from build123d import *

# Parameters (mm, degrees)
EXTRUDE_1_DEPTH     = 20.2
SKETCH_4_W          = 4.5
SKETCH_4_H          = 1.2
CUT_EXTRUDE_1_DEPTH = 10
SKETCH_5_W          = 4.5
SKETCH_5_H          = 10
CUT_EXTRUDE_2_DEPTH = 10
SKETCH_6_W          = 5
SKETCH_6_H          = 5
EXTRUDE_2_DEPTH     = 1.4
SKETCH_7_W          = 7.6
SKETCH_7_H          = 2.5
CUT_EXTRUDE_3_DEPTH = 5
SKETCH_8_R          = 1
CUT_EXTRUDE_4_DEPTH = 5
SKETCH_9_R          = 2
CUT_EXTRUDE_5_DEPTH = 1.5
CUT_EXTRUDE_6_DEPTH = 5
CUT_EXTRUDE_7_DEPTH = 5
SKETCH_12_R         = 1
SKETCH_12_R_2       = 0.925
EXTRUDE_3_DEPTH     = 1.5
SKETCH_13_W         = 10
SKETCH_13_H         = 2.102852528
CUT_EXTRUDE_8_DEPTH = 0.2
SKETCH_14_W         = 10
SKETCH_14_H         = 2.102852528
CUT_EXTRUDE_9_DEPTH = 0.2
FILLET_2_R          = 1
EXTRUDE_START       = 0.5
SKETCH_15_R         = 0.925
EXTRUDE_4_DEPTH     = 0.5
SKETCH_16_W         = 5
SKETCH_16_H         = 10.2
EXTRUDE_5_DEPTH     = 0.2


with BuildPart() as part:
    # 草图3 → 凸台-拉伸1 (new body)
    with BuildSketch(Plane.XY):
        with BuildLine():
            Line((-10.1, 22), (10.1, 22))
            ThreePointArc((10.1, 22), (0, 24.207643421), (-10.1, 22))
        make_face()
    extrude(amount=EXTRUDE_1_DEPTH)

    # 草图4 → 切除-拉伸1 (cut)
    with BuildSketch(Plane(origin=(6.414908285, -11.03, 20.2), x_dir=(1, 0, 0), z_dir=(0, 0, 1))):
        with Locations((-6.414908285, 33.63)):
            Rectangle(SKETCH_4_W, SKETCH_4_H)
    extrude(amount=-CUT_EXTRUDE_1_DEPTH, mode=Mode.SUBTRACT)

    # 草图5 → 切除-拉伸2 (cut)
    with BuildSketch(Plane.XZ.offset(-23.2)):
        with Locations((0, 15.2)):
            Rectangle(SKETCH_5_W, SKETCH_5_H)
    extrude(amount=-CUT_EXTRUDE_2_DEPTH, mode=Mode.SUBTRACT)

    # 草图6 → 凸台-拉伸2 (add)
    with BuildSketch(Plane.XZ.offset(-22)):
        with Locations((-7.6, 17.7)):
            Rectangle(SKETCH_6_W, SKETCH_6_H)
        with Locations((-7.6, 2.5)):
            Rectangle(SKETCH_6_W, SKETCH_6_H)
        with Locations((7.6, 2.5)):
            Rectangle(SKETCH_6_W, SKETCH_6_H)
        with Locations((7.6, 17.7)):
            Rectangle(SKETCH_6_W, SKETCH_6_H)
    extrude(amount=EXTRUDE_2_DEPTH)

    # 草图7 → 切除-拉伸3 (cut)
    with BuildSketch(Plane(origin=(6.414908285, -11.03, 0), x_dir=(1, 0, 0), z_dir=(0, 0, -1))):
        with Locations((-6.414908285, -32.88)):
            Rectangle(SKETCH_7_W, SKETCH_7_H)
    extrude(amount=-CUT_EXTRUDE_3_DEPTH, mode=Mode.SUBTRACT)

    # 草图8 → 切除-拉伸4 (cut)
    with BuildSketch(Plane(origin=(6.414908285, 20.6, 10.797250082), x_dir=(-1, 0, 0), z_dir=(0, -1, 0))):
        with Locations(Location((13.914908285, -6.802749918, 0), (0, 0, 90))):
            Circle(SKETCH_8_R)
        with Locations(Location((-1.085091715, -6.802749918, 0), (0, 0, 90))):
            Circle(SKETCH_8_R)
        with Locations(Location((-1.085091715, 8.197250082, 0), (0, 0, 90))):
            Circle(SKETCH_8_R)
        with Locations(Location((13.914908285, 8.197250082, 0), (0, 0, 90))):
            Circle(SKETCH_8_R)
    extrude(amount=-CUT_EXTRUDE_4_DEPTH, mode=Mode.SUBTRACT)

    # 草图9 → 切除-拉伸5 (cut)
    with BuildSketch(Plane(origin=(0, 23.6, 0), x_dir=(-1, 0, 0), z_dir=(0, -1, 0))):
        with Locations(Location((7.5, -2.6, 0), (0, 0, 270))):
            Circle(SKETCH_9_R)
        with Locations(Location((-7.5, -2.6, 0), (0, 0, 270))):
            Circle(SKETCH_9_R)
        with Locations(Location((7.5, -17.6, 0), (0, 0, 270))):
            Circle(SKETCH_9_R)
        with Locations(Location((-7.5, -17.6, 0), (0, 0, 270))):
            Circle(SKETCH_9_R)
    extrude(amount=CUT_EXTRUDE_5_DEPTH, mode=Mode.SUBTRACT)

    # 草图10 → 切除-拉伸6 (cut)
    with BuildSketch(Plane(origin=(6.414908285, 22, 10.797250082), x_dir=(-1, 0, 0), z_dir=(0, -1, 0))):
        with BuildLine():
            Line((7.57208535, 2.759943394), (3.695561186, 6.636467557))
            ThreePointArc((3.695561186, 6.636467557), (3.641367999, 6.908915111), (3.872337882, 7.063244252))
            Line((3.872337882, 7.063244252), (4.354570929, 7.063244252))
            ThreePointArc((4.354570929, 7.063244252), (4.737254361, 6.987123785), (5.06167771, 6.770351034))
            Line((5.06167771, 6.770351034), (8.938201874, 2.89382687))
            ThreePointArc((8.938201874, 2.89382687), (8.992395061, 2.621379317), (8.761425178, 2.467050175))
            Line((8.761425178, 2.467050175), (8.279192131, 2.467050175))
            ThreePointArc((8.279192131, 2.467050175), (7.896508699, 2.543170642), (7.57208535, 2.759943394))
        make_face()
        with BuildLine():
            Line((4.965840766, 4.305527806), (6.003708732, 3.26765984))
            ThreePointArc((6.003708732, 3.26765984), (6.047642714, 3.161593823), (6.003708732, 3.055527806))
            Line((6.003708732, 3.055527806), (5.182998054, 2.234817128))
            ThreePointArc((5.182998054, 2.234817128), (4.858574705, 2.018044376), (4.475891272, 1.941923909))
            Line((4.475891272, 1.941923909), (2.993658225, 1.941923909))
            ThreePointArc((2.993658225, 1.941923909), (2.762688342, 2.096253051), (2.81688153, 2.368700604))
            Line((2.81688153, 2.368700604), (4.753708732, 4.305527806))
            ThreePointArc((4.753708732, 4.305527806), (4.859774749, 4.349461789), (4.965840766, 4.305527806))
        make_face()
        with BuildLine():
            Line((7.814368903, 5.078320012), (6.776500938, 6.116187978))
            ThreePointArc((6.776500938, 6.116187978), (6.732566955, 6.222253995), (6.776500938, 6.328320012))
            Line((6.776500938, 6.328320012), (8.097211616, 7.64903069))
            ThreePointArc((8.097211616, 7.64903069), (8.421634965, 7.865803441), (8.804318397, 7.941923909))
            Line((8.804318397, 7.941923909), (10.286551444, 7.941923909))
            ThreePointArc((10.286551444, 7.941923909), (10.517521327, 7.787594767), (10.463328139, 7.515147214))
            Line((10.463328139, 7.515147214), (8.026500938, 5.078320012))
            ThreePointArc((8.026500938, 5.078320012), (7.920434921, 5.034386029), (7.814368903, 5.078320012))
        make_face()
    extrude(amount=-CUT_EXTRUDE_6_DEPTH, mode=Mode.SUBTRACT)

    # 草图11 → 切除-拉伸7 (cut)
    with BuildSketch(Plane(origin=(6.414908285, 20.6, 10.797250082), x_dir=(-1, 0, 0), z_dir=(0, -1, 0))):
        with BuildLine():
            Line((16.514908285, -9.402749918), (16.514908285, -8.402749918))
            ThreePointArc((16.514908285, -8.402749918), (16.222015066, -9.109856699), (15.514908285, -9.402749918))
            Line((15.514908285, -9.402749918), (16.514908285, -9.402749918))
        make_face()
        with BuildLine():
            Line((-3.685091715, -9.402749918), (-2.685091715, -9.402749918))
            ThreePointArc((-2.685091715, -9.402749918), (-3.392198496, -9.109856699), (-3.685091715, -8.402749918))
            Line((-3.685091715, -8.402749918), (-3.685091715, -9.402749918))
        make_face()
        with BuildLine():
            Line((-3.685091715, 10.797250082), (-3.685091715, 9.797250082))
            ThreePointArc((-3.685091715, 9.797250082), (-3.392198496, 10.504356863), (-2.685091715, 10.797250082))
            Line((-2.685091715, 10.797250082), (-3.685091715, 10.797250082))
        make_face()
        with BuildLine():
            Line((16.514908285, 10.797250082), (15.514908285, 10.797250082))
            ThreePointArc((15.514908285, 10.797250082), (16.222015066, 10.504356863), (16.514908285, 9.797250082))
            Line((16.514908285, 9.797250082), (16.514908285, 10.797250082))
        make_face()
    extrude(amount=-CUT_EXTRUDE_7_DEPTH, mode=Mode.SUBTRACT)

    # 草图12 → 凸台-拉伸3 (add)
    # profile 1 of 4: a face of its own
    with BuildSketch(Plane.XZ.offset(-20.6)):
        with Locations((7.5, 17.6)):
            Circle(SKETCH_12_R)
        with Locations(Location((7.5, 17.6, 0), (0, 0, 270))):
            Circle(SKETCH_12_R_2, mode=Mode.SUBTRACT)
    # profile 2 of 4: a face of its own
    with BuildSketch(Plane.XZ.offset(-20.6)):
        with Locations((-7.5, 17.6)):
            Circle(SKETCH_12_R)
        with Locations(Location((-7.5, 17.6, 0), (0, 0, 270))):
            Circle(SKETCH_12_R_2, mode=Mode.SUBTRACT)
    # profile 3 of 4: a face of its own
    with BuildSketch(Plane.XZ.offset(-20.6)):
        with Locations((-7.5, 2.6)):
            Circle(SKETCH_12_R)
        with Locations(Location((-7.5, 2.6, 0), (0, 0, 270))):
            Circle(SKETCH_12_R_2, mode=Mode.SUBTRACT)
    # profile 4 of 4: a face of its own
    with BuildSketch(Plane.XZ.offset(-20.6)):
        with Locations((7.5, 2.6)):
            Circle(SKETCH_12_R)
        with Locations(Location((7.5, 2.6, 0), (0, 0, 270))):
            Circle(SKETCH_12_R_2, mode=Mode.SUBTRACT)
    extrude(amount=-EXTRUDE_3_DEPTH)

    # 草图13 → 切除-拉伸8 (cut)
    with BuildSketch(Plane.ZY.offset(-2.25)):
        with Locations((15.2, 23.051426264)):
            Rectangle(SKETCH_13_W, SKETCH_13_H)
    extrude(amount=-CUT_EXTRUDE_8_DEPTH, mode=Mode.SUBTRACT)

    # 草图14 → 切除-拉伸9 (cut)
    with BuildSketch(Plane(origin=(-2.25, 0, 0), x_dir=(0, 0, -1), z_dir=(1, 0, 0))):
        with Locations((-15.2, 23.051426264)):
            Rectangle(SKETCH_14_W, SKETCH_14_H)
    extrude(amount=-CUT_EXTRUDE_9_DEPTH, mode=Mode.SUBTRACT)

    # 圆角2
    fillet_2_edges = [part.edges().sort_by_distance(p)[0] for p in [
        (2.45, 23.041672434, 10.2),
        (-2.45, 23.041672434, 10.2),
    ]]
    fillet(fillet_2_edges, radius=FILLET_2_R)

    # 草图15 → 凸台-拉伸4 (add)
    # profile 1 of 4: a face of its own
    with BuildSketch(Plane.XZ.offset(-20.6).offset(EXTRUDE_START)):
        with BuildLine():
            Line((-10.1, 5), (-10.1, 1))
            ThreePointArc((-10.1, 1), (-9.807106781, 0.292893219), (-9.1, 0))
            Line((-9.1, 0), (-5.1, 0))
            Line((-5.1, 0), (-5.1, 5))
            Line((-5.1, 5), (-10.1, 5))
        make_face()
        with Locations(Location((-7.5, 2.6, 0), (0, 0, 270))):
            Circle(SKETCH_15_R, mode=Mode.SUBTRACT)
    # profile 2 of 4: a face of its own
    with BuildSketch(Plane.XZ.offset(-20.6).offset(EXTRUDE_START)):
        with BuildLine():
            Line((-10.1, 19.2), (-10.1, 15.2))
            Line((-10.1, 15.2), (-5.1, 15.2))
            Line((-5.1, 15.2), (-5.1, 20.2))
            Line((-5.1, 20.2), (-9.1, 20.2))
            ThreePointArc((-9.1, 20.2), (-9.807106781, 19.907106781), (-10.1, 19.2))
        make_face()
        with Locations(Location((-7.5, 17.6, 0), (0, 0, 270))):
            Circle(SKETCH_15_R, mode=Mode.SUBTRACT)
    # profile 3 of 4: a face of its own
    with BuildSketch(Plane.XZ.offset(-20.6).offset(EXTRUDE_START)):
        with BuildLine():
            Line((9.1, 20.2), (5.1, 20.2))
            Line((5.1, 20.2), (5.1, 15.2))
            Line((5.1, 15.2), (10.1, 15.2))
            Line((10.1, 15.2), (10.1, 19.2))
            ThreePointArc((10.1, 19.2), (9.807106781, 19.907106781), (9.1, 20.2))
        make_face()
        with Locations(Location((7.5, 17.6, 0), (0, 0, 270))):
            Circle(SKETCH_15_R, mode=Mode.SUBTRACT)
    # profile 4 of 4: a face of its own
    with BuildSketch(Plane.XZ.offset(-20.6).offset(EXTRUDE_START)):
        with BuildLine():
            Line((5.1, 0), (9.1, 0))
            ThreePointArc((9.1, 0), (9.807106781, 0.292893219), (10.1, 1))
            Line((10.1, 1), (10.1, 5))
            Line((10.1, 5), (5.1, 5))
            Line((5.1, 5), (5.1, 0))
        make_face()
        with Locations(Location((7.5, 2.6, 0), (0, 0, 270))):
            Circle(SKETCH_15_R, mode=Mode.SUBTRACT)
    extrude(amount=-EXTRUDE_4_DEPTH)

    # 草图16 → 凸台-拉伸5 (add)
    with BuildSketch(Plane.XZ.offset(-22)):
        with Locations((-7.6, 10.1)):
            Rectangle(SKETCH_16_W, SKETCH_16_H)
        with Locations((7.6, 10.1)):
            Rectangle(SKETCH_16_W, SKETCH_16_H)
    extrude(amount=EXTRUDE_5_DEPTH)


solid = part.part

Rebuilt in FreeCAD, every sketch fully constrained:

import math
import FreeCAD as App
import Part
import Sketcher
from FreeCAD import Vector


def edges_at(feature, points):
    """Names of the edges that pass closest to the given points."""
    edges = feature.Shape.Edges
    near = lambda p: min(range(len(edges)), key=lambda i: edges[i].distToShape(Part.Vertex(*p))[0])
    return sorted({f"Edge{near(p) + 1}" for p in points})

doc = App.newDocument("Part")
body = doc.addObject("PartDesign::Body", "Body")

# Sketch on XY plane
sketch1 = body.newObject("Sketcher::SketchObject", "Sketch")
sketch1.AttachmentSupport = (doc.getObject("XY_Plane"), [""])
sketch1.MapMode = "FlatFace"
sketch1.addGeometry([
    Part.LineSegment(Vector(-10.1, 22, 0), Vector(10.1, 22, 0)),
    Part.ArcOfCircle(Part.Circle(Vector(0, 0, 0), Vector(0, 0, 1), 24.207643), math.radians(65.340575), math.radians(114.659425)),
], False)
sketch1.addConstraint([
    Sketcher.Constraint("Coincident", 0, 1, 1, 2),
    Sketcher.Constraint("Coincident", 1, 1, 0, 2),
    Sketcher.Constraint("Horizontal", 0),
    Sketcher.Constraint("Coincident", 1, 3, -1, 1),
    Sketcher.Constraint("DistanceX", 0, 1, 0, 2, 20.2),
    Sketcher.Constraint("DistanceY", -1, 1, 0, 1, 22.0),
])
pad1 = body.newObject("PartDesign::Pad", "Pad")
pad1.Profile = sketch1
pad1.Length = 20.2

# Sketch on XY plane
sketch2 = body.newObject("Sketcher::SketchObject", "Sketch001")
sketch2.AttachmentSupport = (doc.getObject("XY_Plane"), [""])
sketch2.MapMode = "FlatFace"
sketch2.AttachmentOffset = App.Placement(Vector(0, 0, 20.2), App.Rotation())
sketch2.addGeometry([
    Part.LineSegment(Vector(-2.25, 23.2, 0), Vector(-2.25, 22, 0)),
    Part.LineSegment(Vector(-2.25, 22, 0), Vector(2.25, 22, 0)),
    Part.LineSegment(Vector(2.25, 22, 0), Vector(2.25, 23.2, 0)),
    Part.LineSegment(Vector(2.25, 23.2, 0), Vector(-2.25, 23.2, 0)),
], False)
sketch2.addConstraint([
    Sketcher.Constraint("Coincident", 0, 2, 1, 1),
    Sketcher.Constraint("Coincident", 1, 2, 2, 1),
    Sketcher.Constraint("Coincident", 2, 2, 3, 1),
    Sketcher.Constraint("Coincident", 3, 2, 0, 1),
    Sketcher.Constraint("Vertical", 0),
    Sketcher.Constraint("Horizontal", 1),
    Sketcher.Constraint("Vertical", 2),
    Sketcher.Constraint("Horizontal", 3),
    Sketcher.Constraint("DistanceX", 1, 1, 1, 2, 4.5),
    Sketcher.Constraint("DistanceY", 0, 2, 0, 1, 1.2),
    Sketcher.Constraint("DistanceY", -1, 1, 0, 2, 22.0),
    Sketcher.Constraint("DistanceX", 0, 2, -1, 1, 2.25),
])
pocket1 = body.newObject("PartDesign::Pocket", "Pocket")
pocket1.Profile = sketch2
pocket1.Length = 10

# Sketch on XZ plane
sketch3 = body.newObject("Sketcher::SketchObject", "Sketch002")
sketch3.AttachmentSupport = (doc.getObject("XZ_Plane"), [""])
sketch3.MapMode = "FlatFace"
sketch3.AttachmentOffset = App.Placement(Vector(0, 0, -23.2), App.Rotation())
sketch3.addGeometry([
    Part.LineSegment(Vector(-2.25, 20.2, 0), Vector(-2.25, 10.2, 0)),
    Part.LineSegment(Vector(-2.25, 10.2, 0), Vector(2.25, 10.2, 0)),
    Part.LineSegment(Vector(2.25, 10.2, 0), Vector(2.25, 20.2, 0)),
    Part.LineSegment(Vector(2.25, 20.2, 0), Vector(-2.25, 20.2, 0)),
], False)
sketch3.addConstraint([
    Sketcher.Constraint("Coincident", 0, 2, 1, 1),
    Sketcher.Constraint("Coincident", 1, 2, 2, 1),
    Sketcher.Constraint("Coincident", 2, 2, 3, 1),
    Sketcher.Constraint("Coincident", 3, 2, 0, 1),
    Sketcher.Constraint("Vertical", 0),
    Sketcher.Constraint("Horizontal", 1),
    Sketcher.Constraint("Vertical", 2),
    Sketcher.Constraint("Horizontal", 3),
    Sketcher.Constraint("DistanceY", 0, 2, 0, 1, 10.0),
    Sketcher.Constraint("DistanceX", 1, 1, 1, 2, 4.5),
    Sketcher.Constraint("DistanceY", -1, 1, 0, 2, 10.2),
    Sketcher.Constraint("DistanceX", 0, 2, -1, 1, 2.25),
])
pocket2 = body.newObject("PartDesign::Pocket", "Pocket001")
pocket2.Profile = sketch3
pocket2.Length = 10

# Sketch on XZ plane
sketch4 = body.newObject("Sketcher::SketchObject", "Sketch003")
sketch4.AttachmentSupport = (doc.getObject("XZ_Plane"), [""])
sketch4.MapMode = "FlatFace"
sketch4.AttachmentOffset = App.Placement(Vector(0, 0, -22), App.Rotation())
sketch4.addGeometry([
    Part.LineSegment(Vector(-10.1, 20.2, 0), Vector(-10.1, 15.2, 0)),  # 0
    Part.LineSegment(Vector(-10.1, 15.2, 0), Vector(-5.1, 15.2, 0)),  # 1
    Part.LineSegment(Vector(-5.1, 15.2, 0), Vector(-5.1, 20.2, 0)),  # 2
    Part.LineSegment(Vector(-5.1, 20.2, 0), Vector(-10.1, 20.2, 0)),  # 3
    Part.LineSegment(Vector(-10.1, 5, 0), Vector(-10.1, 0, 0)),  # 4
    Part.LineSegment(Vector(-10.1, 0, 0), Vector(-5.1, 0, 0)),  # 5
    Part.LineSegment(Vector(-5.1, 0, 0), Vector(-5.1, 5, 0)),  # 6
    Part.LineSegment(Vector(-5.1, 5, 0), Vector(-10.1, 5, 0)),  # 7
    Part.LineSegment(Vector(5.1, 5, 0), Vector(5.1, 0, 0)),  # 8
    Part.LineSegment(Vector(5.1, 0, 0), Vector(10.1, 0, 0)),  # 9
    Part.LineSegment(Vector(10.1, 0, 0), Vector(10.1, 5, 0)),  # 10
    Part.LineSegment(Vector(10.1, 5, 0), Vector(5.1, 5, 0)),  # 11
    Part.LineSegment(Vector(5.1, 20.2, 0), Vector(5.1, 15.2, 0)),  # 12
    Part.LineSegment(Vector(5.1, 15.2, 0), Vector(10.1, 15.2, 0)),  # 13
    Part.LineSegment(Vector(10.1, 15.2, 0), Vector(10.1, 20.2, 0)),  # 14
    Part.LineSegment(Vector(10.1, 20.2, 0), Vector(5.1, 20.2, 0)),  # 15
], False)
sketch4.addConstraint([
    Sketcher.Constraint("Coincident", 0, 2, 1, 1),
    Sketcher.Constraint("Coincident", 1, 2, 2, 1),
    Sketcher.Constraint("Coincident", 2, 2, 3, 1),
    Sketcher.Constraint("Coincident", 3, 2, 0, 1),
    Sketcher.Constraint("Coincident", 4, 2, 5, 1),
    Sketcher.Constraint("Coincident", 5, 2, 6, 1),
    Sketcher.Constraint("Coincident", 6, 2, 7, 1),
    Sketcher.Constraint("Coincident", 7, 2, 4, 1),
    Sketcher.Constraint("Coincident", 8, 2, 9, 1),
    Sketcher.Constraint("Coincident", 9, 2, 10, 1),
    Sketcher.Constraint("Coincident", 10, 2, 11, 1),
    Sketcher.Constraint("Coincident", 11, 2, 8, 1),
    Sketcher.Constraint("Coincident", 12, 2, 13, 1),
    Sketcher.Constraint("Coincident", 13, 2, 14, 1),
    Sketcher.Constraint("Coincident", 14, 2, 15, 1),
    Sketcher.Constraint("Coincident", 15, 2, 12, 1),
    Sketcher.Constraint("Vertical", 0),
    Sketcher.Constraint("Horizontal", 1),
    Sketcher.Constraint("Vertical", 2),
    Sketcher.Constraint("Horizontal", 3),
    Sketcher.Constraint("Vertical", 4),
    Sketcher.Constraint("Horizontal", 5),
    Sketcher.Constraint("Vertical", 6),
    Sketcher.Constraint("Horizontal", 7),
    Sketcher.Constraint("Vertical", 8),
    Sketcher.Constraint("Horizontal", 9),
    Sketcher.Constraint("Vertical", 10),
    Sketcher.Constraint("Horizontal", 11),
    Sketcher.Constraint("Vertical", 12),
    Sketcher.Constraint("Horizontal", 13),
    Sketcher.Constraint("Vertical", 14),
    Sketcher.Constraint("Horizontal", 15),
    Sketcher.Constraint("Symmetric", 5, 2, 8, 2, -1, 1),
    Sketcher.Constraint("Symmetric", 4, 2, 9, 2, -2),
    Sketcher.Constraint("Symmetric", 1, 2, 12, 2, -2),
    Sketcher.Constraint("Symmetric", 3, 2, 14, 2, -2),
    Sketcher.Constraint("Horizontal", 7, 2, 10, 2),
    Sketcher.Constraint("Vertical", 3, 2, 4, 2),
    Sketcher.Constraint("Vertical", 2, 2, 5, 2),
    Sketcher.Constraint("Equal", 15, 0),
    Sketcher.Constraint("Equal", 2, 4),
    Sketcher.Constraint("DistanceX", 1, 1, 1, 2, 5.0),
    Sketcher.Constraint("DistanceX", 0, 2, -1, 1, 10.1),
    Sketcher.Constraint("DistanceY", -1, 1, 0, 2, 15.2),
])
pad2 = body.newObject("PartDesign::Pad", "Pad001")
pad2.Profile = sketch4
pad2.Length = 1.4

# Sketch on XY plane
sketch5 = body.newObject("Sketcher::SketchObject", "Sketch004")
sketch5.AttachmentSupport = (doc.getObject("XY_Plane"), [""])
sketch5.MapMode = "FlatFace"
sketch5.addGeometry([
    Part.LineSegment(Vector(-3.8, 20.6, 0), Vector(-3.8, 23.1, 0)),
    Part.LineSegment(Vector(-3.8, 23.1, 0), Vector(3.8, 23.1, 0)),
    Part.LineSegment(Vector(3.8, 23.1, 0), Vector(3.8, 20.6, 0)),
    Part.LineSegment(Vector(3.8, 20.6, 0), Vector(-3.8, 20.6, 0)),
], False)
sketch5.addConstraint([
    Sketcher.Constraint("Coincident", 0, 2, 1, 1),
    Sketcher.Constraint("Coincident", 1, 2, 2, 1),
    Sketcher.Constraint("Coincident", 2, 2, 3, 1),
    Sketcher.Constraint("Coincident", 3, 2, 0, 1),
    Sketcher.Constraint("Vertical", 0),
    Sketcher.Constraint("Horizontal", 1),
    Sketcher.Constraint("Vertical", 2),
    Sketcher.Constraint("Horizontal", 3),
    Sketcher.Constraint("DistanceX", 1, 1, 1, 2, 7.6),
    Sketcher.Constraint("DistanceY", 0, 1, 0, 2, 2.5),
    Sketcher.Constraint("DistanceX", 0, 2, -1, 1, 3.8),
    Sketcher.Constraint("DistanceY", -1, 1, 0, 2, 23.1),
])
pocket3 = body.newObject("PartDesign::Pocket", "Pocket002")
pocket3.Profile = sketch5
pocket3.Length = 5
pocket3.Reversed = True

# Sketch on XZ plane
sketch6 = body.newObject("Sketcher::SketchObject", "Sketch005")
sketch6.AttachmentSupport = (doc.getObject("XZ_Plane"), [""])
sketch6.MapMode = "FlatFace"
sketch6.AttachmentOffset = App.Placement(Vector(0, 0, -20.6), App.Rotation())
sketch6.addGeometry([
    Part.Circle(Vector(-7.5, 17.6, 0), Vector(0, 0, 1), 1),
    Part.Circle(Vector(7.5, 17.6, 0), Vector(0, 0, 1), 1),
    Part.Circle(Vector(7.5, 2.6, 0), Vector(0, 0, 1), 1),
    Part.Circle(Vector(-7.5, 2.6, 0), Vector(0, 0, 1), 1),
], False)
sketch6.addConstraint([
    Sketcher.Constraint("Equal", 0, 1),
    Sketcher.Constraint("Equal", 1, 2),
    Sketcher.Constraint("Equal", 2, 3),
    Sketcher.Constraint("Symmetric", 0, 3, 1, 3, -2),
    Sketcher.Constraint("Symmetric", 2, 3, 3, 3, -2),
    Sketcher.Constraint("Vertical", 1, 3, 2, 3),
    Sketcher.Constraint("Diameter", 0, 2.0),
    Sketcher.Constraint("DistanceX", 0, 3, 1, 3, 15.0),
    Sketcher.Constraint("DistanceY", 2, 3, 1, 3, 15.0),
    Sketcher.Constraint("DistanceY", -1, 1, 0, 3, 17.6),
])
pocket4 = body.newObject("PartDesign::Pocket", "Pocket003")
pocket4.Profile = sketch6
pocket4.Length = 5

# Sketch on XZ plane
sketch7 = body.newObject("Sketcher::SketchObject", "Sketch006")
sketch7.AttachmentSupport = (doc.getObject("XZ_Plane"), [""])
sketch7.MapMode = "FlatFace"
sketch7.AttachmentOffset = App.Placement(Vector(0, 0, -23.6), App.Rotation())
sketch7.addGeometry([
    Part.Circle(Vector(-7.5, 2.6, 0), Vector(0, 0, 1), 2),
    Part.Circle(Vector(7.5, 2.6, 0), Vector(0, 0, 1), 2),
    Part.Circle(Vector(-7.5, 17.6, 0), Vector(0, 0, 1), 2),
    Part.Circle(Vector(7.5, 17.6, 0), Vector(0, 0, 1), 2),
], False)
sketch7.addConstraint([
    Sketcher.Constraint("Equal", 0, 1),
    Sketcher.Constraint("Equal", 1, 2),
    Sketcher.Constraint("Equal", 2, 3),
    Sketcher.Constraint("Symmetric", 0, 3, 1, 3, -2),
    Sketcher.Constraint("Symmetric", 2, 3, 3, 3, -2),
    Sketcher.Constraint("Vertical", 0, 3, 2, 3),
    Sketcher.Constraint("Diameter", 0, 4.0),
    Sketcher.Constraint("DistanceX", 0, 3, 1, 3, 15.0),
    Sketcher.Constraint("DistanceY", 0, 3, 2, 3, 15.0),
    Sketcher.Constraint("DistanceY", -1, 1, 0, 3, 2.6),
])
pocket5 = body.newObject("PartDesign::Pocket", "Pocket004")
pocket5.Profile = sketch7
pocket5.Length = 1.5
pocket5.Reversed = True

# Sketch on XZ plane
sketch8 = body.newObject("Sketcher::SketchObject", "Sketch007")
sketch8.AttachmentSupport = (doc.getObject("XZ_Plane"), [""])
sketch8.MapMode = "FlatFace"
sketch8.AttachmentOffset = App.Placement(Vector(0, 0, -22), App.Rotation())
sketch8.addGeometry([
    Part.LineSegment(Vector(2.719347, 4.160783, 0), Vector(-1.157177, 8.037307, 0)),  # 0
    Part.ArcOfCircle(Part.Circle(Vector(-1.864284, 7.3302, 0), Vector(0, 0, 1), 1), math.radians(45), math.radians(90)),  # 1
    Part.LineSegment(Vector(-1.864284, 8.3302, 0), Vector(-2.346517, 8.3302, 0)),  # 2
    Part.ArcOfCircle(Part.Circle(Vector(-2.346517, 8.0802, 0), Vector(0, 0, 1), 0.25), math.radians(90), math.radians(225)),  # 3
    Part.LineSegment(Vector(-2.523294, 7.903423, 0), Vector(1.353231, 4.026899, 0)),  # 4
    Part.ArcOfCircle(Part.Circle(Vector(2.060337, 4.734006, 0), Vector(0, 0, 1), 1), math.radians(-135), math.radians(-90)),  # 5
    Part.LineSegment(Vector(2.060337, 3.734006, 0), Vector(2.54257, 3.734006, 0)),  # 6
    Part.ArcOfCircle(Part.Circle(Vector(2.54257, 3.984006, 0), Vector(0, 0, 1), 0.25), math.radians(-90), math.radians(45)),  # 7
    Part.LineSegment(Vector(0.4112, 7.52959, 0), Vector(1.449068, 6.491722, 0)),  # 8
    Part.ArcOfCircle(Part.Circle(Vector(1.555134, 6.597788, 0), Vector(0, 0, 1), 0.15), math.radians(-135), math.radians(-45)),  # 9
    Part.LineSegment(Vector(1.6612, 6.491722, 0), Vector(3.598027, 8.428549, 0)),  # 10
    Part.ArcOfCircle(Part.Circle(Vector(3.42125, 8.605326, 0), Vector(0, 0, 1), 0.25), math.radians(-45), math.radians(90)),  # 11
    Part.LineSegment(Vector(3.42125, 8.855326, 0), Vector(1.939017, 8.855326, 0)),  # 12
    Part.ArcOfCircle(Part.Circle(Vector(1.939017, 7.855326, 0), Vector(0, 0, 1), 1), math.radians(90), math.radians(135)),  # 13
    Part.LineSegment(Vector(1.23191, 8.562433, 0), Vector(0.4112, 7.741722, 0)),  # 14
    Part.ArcOfCircle(Part.Circle(Vector(0.517266, 7.635656, 0), Vector(0, 0, 1), 0.15), math.radians(135.000001), math.radians(224.999999)),  # 15
    Part.LineSegment(Vector(-0.361593, 4.681062, 0), Vector(-1.399461, 5.71893, 0)),  # 16
    Part.ArcOfCircle(Part.Circle(Vector(-1.505527, 5.612864, 0), Vector(0, 0, 1), 0.15), math.radians(45), math.radians(135)),  # 17
    Part.LineSegment(Vector(-1.611593, 5.71893, 0), Vector(-4.04842, 3.282103, 0)),  # 18
    Part.ArcOfCircle(Part.Circle(Vector(-3.871643, 3.105326, 0), Vector(0, 0, 1), 0.25), math.radians(135), math.radians(270)),  # 19
    Part.LineSegment(Vector(-3.871643, 2.855326, 0), Vector(-2.38941, 2.855326, 0)),  # 20
    Part.ArcOfCircle(Part.Circle(Vector(-2.38941, 3.855326, 0), Vector(0, 0, 1), 1), math.radians(-90), math.radians(-45)),  # 21
    Part.LineSegment(Vector(-1.682303, 3.148219, 0), Vector(-0.361593, 4.46893, 0)),  # 22
    Part.ArcOfCircle(Part.Circle(Vector(-0.467659, 4.574996, 0), Vector(0, 0, 1), 0.15), math.radians(-45), math.radians(45)),  # 23
], False)
sketch8.addConstraint([
    Sketcher.Constraint("Tangent", 0, 2, 1, 1),
    Sketcher.Constraint("Tangent", 1, 2, 2, 1),
    Sketcher.Constraint("Tangent", 2, 2, 3, 1),
    Sketcher.Constraint("Tangent", 3, 2, 4, 1),
    Sketcher.Constraint("Tangent", 4, 2, 5, 1),
    Sketcher.Constraint("Tangent", 5, 2, 6, 1),
    Sketcher.Constraint("Tangent", 6, 2, 7, 1),
    Sketcher.Constraint("Tangent", 7, 2, 0, 1),
    Sketcher.Constraint("Tangent", 8, 2, 9, 1),
    Sketcher.Constraint("Tangent", 9, 2, 10, 1),
    Sketcher.Constraint("Tangent", 10, 2, 11, 1),
    Sketcher.Constraint("Tangent", 11, 2, 12, 1),
    Sketcher.Constraint("Tangent", 12, 2, 13, 1),
    Sketcher.Constraint("Tangent", 13, 2, 14, 1),
    Sketcher.Constraint("Tangent", 14, 2, 15, 1),
    Sketcher.Constraint("Tangent", 15, 2, 8, 1),
    Sketcher.Constraint("Tangent", 16, 2, 17, 1),
    Sketcher.Constraint("Tangent", 17, 2, 18, 1),
    Sketcher.Constraint("Tangent", 18, 2, 19, 1),
    Sketcher.Constraint("Tangent", 19, 2, 20, 1),
    Sketcher.Constraint("Tangent", 20, 2, 21, 1),
    Sketcher.Constraint("Tangent", 21, 2, 22, 1),
    Sketcher.Constraint("Tangent", 22, 2, 23, 1),
    Sketcher.Constraint("Tangent", 23, 2, 16, 1),
    Sketcher.Constraint("Horizontal", 2),
    Sketcher.Constraint("Horizontal", 6),
    Sketcher.Constraint("Horizontal", 12),
    Sketcher.Constraint("Horizontal", 20),
    Sketcher.Constraint("Equal", 1, 5),
    Sketcher.Constraint("Equal", 3, 7),
    Sketcher.Constraint("Equal", 7, 11),
    Sketcher.Constraint("Equal", 5, 13),
    Sketcher.Constraint("Equal", 9, 15),
    Sketcher.Constraint("Equal", 15, 17),
    Sketcher.Constraint("Equal", 11, 19),
    Sketcher.Constraint("Equal", 13, 21),
    Sketcher.Constraint("Equal", 17, 23),
    Sketcher.Constraint("Parallel", 0, 4),
    Sketcher.Constraint("Parallel", 4, 8),
    Sketcher.Constraint("Perpendicular", 8, 10),
    Sketcher.Constraint("Parallel", 10, 14),
    Sketcher.Constraint("Perpendicular", 14, 16),
    Sketcher.Constraint("Perpendicular", 16, 18),
    Sketcher.Constraint("Parallel", 18, 22),
    Sketcher.Constraint("Horizontal", 8, 2, 9, 2),
    Sketcher.Constraint("Equal", 12, 20),
    Sketcher.Constraint("Radius", 1, 1.0),
    Sketcher.Constraint("Radius", 3, 0.25),
    Sketcher.Constraint("Radius", 9, 0.15),
    Sketcher.Constraint("DistanceY", 22, 2, 16, 2, 1.25),
    Sketcher.Constraint("DistanceY", -1, 1, 1, 3, 7.3302),
    Sketcher.Constraint("DistanceY", -1, 1, 4, 2, 4.026899),
    Sketcher.Constraint("DistanceX", -1, 1, 9, 2, 1.6612),
    Sketcher.Constraint("DistanceX", 1, 3, 13, 3, 3.803301),
    Sketcher.Constraint("Distance", 14, 1.16066),
    Sketcher.Constraint("DistanceX", 2, 2, 2, 1, 0.482233),
    Sketcher.Constraint("DistanceY", -1, 1, 9, 3, 6.597788),
    Sketcher.Constraint("DistanceX", 21, 3, -1, 1, 2.38941),
    Sketcher.Constraint("DistanceX", 23, 3, -1, 1, 0.467659),
    Sketcher.Constraint("DistanceY", -1, 1, 16, 2, 5.71893),
])
pocket6 = body.newObject("PartDesign::Pocket", "Pocket005")
pocket6.Profile = sketch8
pocket6.Length = 5

# Sketch on XZ plane
sketch9 = body.newObject("Sketcher::SketchObject", "Sketch008")
sketch9.AttachmentSupport = (doc.getObject("XZ_Plane"), [""])
sketch9.MapMode = "FlatFace"
sketch9.AttachmentOffset = App.Placement(Vector(0, 0, -20.6), App.Rotation())
sketch9.addGeometry([
    Part.LineSegment(Vector(-10.1, 20.2, 0), Vector(-10.1, 19.2, 0)),  # 0
    Part.ArcOfCircle(Part.Circle(Vector(-9.1, 19.2, 0), Vector(0, 0, 1), 1), math.radians(90), math.radians(180)),  # 1
    Part.LineSegment(Vector(-9.1, 20.2, 0), Vector(-10.1, 20.2, 0)),  # 2
    Part.LineSegment(Vector(10.1, 20.2, 0), Vector(9.1, 20.2, 0)),  # 3
    Part.ArcOfCircle(Part.Circle(Vector(9.1, 19.2, 0), Vector(0, 0, 1), 1), math.radians(0), math.radians(90)),  # 4
    Part.LineSegment(Vector(10.1, 19.2, 0), Vector(10.1, 20.2, 0)),  # 5
    Part.LineSegment(Vector(10.1, 0, 0), Vector(10.1, 1, 0)),  # 6
    Part.ArcOfCircle(Part.Circle(Vector(9.1, 1, 0), Vector(0, 0, 1), 1), math.radians(-90), math.radians(0)),  # 7
    Part.LineSegment(Vector(9.1, 0, 0), Vector(10.1, 0, 0)),  # 8
    Part.LineSegment(Vector(-10.1, 0, 0), Vector(-9.1, 0, 0)),  # 9
    Part.ArcOfCircle(Part.Circle(Vector(-9.1, 1, 0), Vector(0, 0, 1), 1), math.radians(-180), math.radians(-90)),  # 10
    Part.LineSegment(Vector(-10.1, 1, 0), Vector(-10.1, 0, 0)),  # 11
], False)
sketch9.addConstraint([
    Sketcher.Constraint("Tangent", 0, 2, 1, 2),
    Sketcher.Constraint("Tangent", 1, 1, 2, 1),
    Sketcher.Constraint("Coincident", 2, 2, 0, 1),
    Sketcher.Constraint("Tangent", 3, 2, 4, 2),
    Sketcher.Constraint("Tangent", 4, 1, 5, 1),
    Sketcher.Constraint("Coincident", 5, 2, 3, 1),
    Sketcher.Constraint("Tangent", 6, 2, 7, 2),
    Sketcher.Constraint("Tangent", 7, 1, 8, 1),
    Sketcher.Constraint("Coincident", 8, 2, 6, 1),
    Sketcher.Constraint("Tangent", 9, 2, 10, 2),
    Sketcher.Constraint("Tangent", 10, 1, 11, 1),
    Sketcher.Constraint("Coincident", 11, 2, 9, 1),
    Sketcher.Constraint("Vertical", 0),
    Sketcher.Constraint("Horizontal", 2),
    Sketcher.Constraint("Horizontal", 3),
    Sketcher.Constraint("Vertical", 5),
    Sketcher.Constraint("Vertical", 6),
    Sketcher.Constraint("Horizontal", 8),
    Sketcher.Constraint("Horizontal", 9),
    Sketcher.Constraint("Vertical", 11),
    Sketcher.Constraint("Equal", 1, 4),
    Sketcher.Constraint("Equal", 4, 7),
    Sketcher.Constraint("Equal", 7, 10),
    Sketcher.Constraint("Symmetric", 7, 1, 9, 2, -1, 1),
    Sketcher.Constraint("Symmetric", 1, 3, 4, 3, -2),
    Sketcher.Constraint("PointOnObject", 7, 1, -1),
    Sketcher.Constraint("Vertical", 4, 3, 7, 3),
    Sketcher.Constraint("Radius", 1, 1.0),
    Sketcher.Constraint("DistanceX", 1, 3, -1, 1, 9.1),
    Sketcher.Constraint("DistanceY", -1, 1, 1, 3, 19.2),
])
pocket7 = body.newObject("PartDesign::Pocket", "Pocket006")
pocket7.Profile = sketch9
pocket7.Length = 5

# Sketch on XZ plane
sketch10 = body.newObject("Sketcher::SketchObject", "Sketch009")
sketch10.AttachmentSupport = (doc.getObject("XZ_Plane"), [""])
sketch10.MapMode = "FlatFace"
sketch10.AttachmentOffset = App.Placement(Vector(0, 0, -20.6), App.Rotation())
sketch10.addGeometry([
    Part.Circle(Vector(7.5, 17.6, 0), Vector(0, 0, 1), 1),  # 0
    Part.Circle(Vector(7.5, 17.6, 0), Vector(0, 0, 1), 0.925),  # 1
    Part.Circle(Vector(-7.5, 17.6, 0), Vector(0, 0, 1), 1),  # 2
    Part.Circle(Vector(-7.5, 17.6, 0), Vector(0, 0, 1), 0.925),  # 3
    Part.Circle(Vector(-7.5, 2.6, 0), Vector(0, 0, 1), 1),  # 4
    Part.Circle(Vector(-7.5, 2.6, 0), Vector(0, 0, 1), 0.925),  # 5
    Part.Circle(Vector(7.5, 2.6, 0), Vector(0, 0, 1), 1),  # 6
    Part.Circle(Vector(7.5, 2.6, 0), Vector(0, 0, 1), 0.925),  # 7
], False)
sketch10.addConstraint([
    Sketcher.Constraint("Coincident", 1, 3, 0, 3),
    Sketcher.Constraint("Coincident", 3, 3, 2, 3),
    Sketcher.Constraint("Coincident", 5, 3, 4, 3),
    Sketcher.Constraint("Coincident", 7, 3, 6, 3),
    Sketcher.Constraint("Equal", 0, 2),
    Sketcher.Constraint("Equal", 1, 3),
    Sketcher.Constraint("Equal", 2, 4),
    Sketcher.Constraint("Equal", 3, 5),
    Sketcher.Constraint("Equal", 4, 6),
    Sketcher.Constraint("Equal", 5, 7),
    Sketcher.Constraint("Symmetric", 0, 3, 2, 3, -2),
    Sketcher.Constraint("Symmetric", 4, 3, 6, 3, -2),
    Sketcher.Constraint("Vertical", 3, 3, 4, 3),
    Sketcher.Constraint("Diameter", 0, 2.0),
    Sketcher.Constraint("Diameter", 1, 1.85),
    Sketcher.Constraint("DistanceX", 2, 3, 0, 3, 15.0),
    Sketcher.Constraint("DistanceY", 4, 3, 2, 3, 15.0),
    Sketcher.Constraint("DistanceY", -1, 1, 0, 3, 17.6),
])
pad3 = body.newObject("PartDesign::Pad", "Pad002")
pad3.Profile = sketch10
pad3.Length = 1.5
pad3.Reversed = True

# Sketch on YZ plane
sketch11 = body.newObject("Sketcher::SketchObject", "Sketch010")
sketch11.AttachmentSupport = (doc.getObject("YZ_Plane"), [""])
sketch11.MapMode = "FlatFace"
sketch11.AttachmentOffset = App.Placement(Vector(0, 0, 2.25), App.Rotation())
sketch11.addGeometry([
    Part.LineSegment(Vector(24.102853, 10.2, 0), Vector(22, 10.2, 0)),
    Part.LineSegment(Vector(22, 10.2, 0), Vector(22, 20.2, 0)),
    Part.LineSegment(Vector(22, 20.2, 0), Vector(24.102853, 20.2, 0)),
    Part.LineSegment(Vector(24.102853, 20.2, 0), Vector(24.102853, 10.2, 0)),
], False)
sketch11.addConstraint([
    Sketcher.Constraint("Coincident", 0, 2, 1, 1),
    Sketcher.Constraint("Coincident", 1, 2, 2, 1),
    Sketcher.Constraint("Coincident", 2, 2, 3, 1),
    Sketcher.Constraint("Coincident", 3, 2, 0, 1),
    Sketcher.Constraint("Horizontal", 0),
    Sketcher.Constraint("Vertical", 1),
    Sketcher.Constraint("Horizontal", 2),
    Sketcher.Constraint("Vertical", 3),
    Sketcher.Constraint("DistanceY", 1, 1, 1, 2, 10.0),
    Sketcher.Constraint("DistanceX", -1, 1, 0, 2, 22.0),
    Sketcher.Constraint("DistanceY", -1, 1, 0, 2, 10.2),
    Sketcher.Constraint("DistanceX", 0, 2, 0, 1, 2.102853),
])
pocket8 = body.newObject("PartDesign::Pocket", "Pocket007")
pocket8.Profile = sketch11
pocket8.Length = 0.2
pocket8.Reversed = True

# Sketch on YZ plane
sketch12 = body.newObject("Sketcher::SketchObject", "Sketch011")
sketch12.AttachmentSupport = (doc.getObject("YZ_Plane"), [""])
sketch12.MapMode = "FlatFace"
sketch12.AttachmentOffset = App.Placement(Vector(0, 0, -2.25), App.Rotation())
sketch12.addGeometry([
    Part.LineSegment(Vector(24.102853, 20.2, 0), Vector(22, 20.2, 0)),
    Part.LineSegment(Vector(22, 20.2, 0), Vector(22, 10.2, 0)),
    Part.LineSegment(Vector(22, 10.2, 0), Vector(24.102853, 10.2, 0)),
    Part.LineSegment(Vector(24.102853, 10.2, 0), Vector(24.102853, 20.2, 0)),
], False)
sketch12.addConstraint([
    Sketcher.Constraint("Coincident", 0, 2, 1, 1),
    Sketcher.Constraint("Coincident", 1, 2, 2, 1),
    Sketcher.Constraint("Coincident", 2, 2, 3, 1),
    Sketcher.Constraint("Coincident", 3, 2, 0, 1),
    Sketcher.Constraint("Horizontal", 0),
    Sketcher.Constraint("Vertical", 1),
    Sketcher.Constraint("Horizontal", 2),
    Sketcher.Constraint("Vertical", 3),
    Sketcher.Constraint("DistanceY", 1, 2, 1, 1, 10.0),
    Sketcher.Constraint("DistanceX", -1, 1, 0, 2, 22.0),
    Sketcher.Constraint("DistanceY", -1, 1, 0, 2, 20.2),
    Sketcher.Constraint("DistanceX", 0, 2, 0, 1, 2.102853),
])
pocket9 = body.newObject("PartDesign::Pocket", "Pocket008")
pocket9.Profile = sketch12
pocket9.Length = 0.2
doc.recompute()

fillet = body.newObject("PartDesign::Fillet", "Fillet")
fillet.Base = (pocket9, edges_at(pocket9, [(2.45, 23.042, 10.2), (-2.45, 23.042, 10.2)]))
fillet.Radius = 1

# Sketch on XZ plane
sketch13 = body.newObject("Sketcher::SketchObject", "Sketch012")
sketch13.AttachmentSupport = (doc.getObject("XZ_Plane"), [""])
sketch13.MapMode = "FlatFace"
sketch13.AttachmentOffset = App.Placement(Vector(0, 0, -20.1), App.Rotation())
sketch13.addGeometry([
    Part.LineSegment(Vector(-10.1, 5, 0), Vector(-10.1, 1, 0)),  # 0
    Part.ArcOfCircle(Part.Circle(Vector(-9.1, 1, 0), Vector(0, 0, 1), 1), math.radians(-180), math.radians(-90)),  # 1
    Part.LineSegment(Vector(-9.1, 0, 0), Vector(-5.1, 0, 0)),  # 2
    Part.LineSegment(Vector(-5.1, 0, 0), Vector(-5.1, 5, 0)),  # 3
    Part.LineSegment(Vector(-5.1, 5, 0), Vector(-10.1, 5, 0)),  # 4
    Part.Circle(Vector(-7.5, 2.6, 0), Vector(0, 0, 1), 0.925),  # 5
    Part.LineSegment(Vector(-10.1, 19.2, 0), Vector(-10.1, 15.2, 0)),  # 6
    Part.LineSegment(Vector(-10.1, 15.2, 0), Vector(-5.1, 15.2, 0)),  # 7
    Part.LineSegment(Vector(-5.1, 15.2, 0), Vector(-5.1, 20.2, 0)),  # 8
    Part.LineSegment(Vector(-5.1, 20.2, 0), Vector(-9.1, 20.2, 0)),  # 9
    Part.ArcOfCircle(Part.Circle(Vector(-9.1, 19.2, 0), Vector(0, 0, 1), 1), math.radians(90), math.radians(180)),  # 10
    Part.Circle(Vector(-7.5, 17.6, 0), Vector(0, 0, 1), 0.925),  # 11
    Part.LineSegment(Vector(9.1, 20.2, 0), Vector(5.1, 20.2, 0)),  # 12
    Part.LineSegment(Vector(5.1, 20.2, 0), Vector(5.1, 15.2, 0)),  # 13
    Part.LineSegment(Vector(5.1, 15.2, 0), Vector(10.1, 15.2, 0)),  # 14
    Part.LineSegment(Vector(10.1, 15.2, 0), Vector(10.1, 19.2, 0)),  # 15
    Part.ArcOfCircle(Part.Circle(Vector(9.1, 19.2, 0), Vector(0, 0, 1), 1), math.radians(0), math.radians(90)),  # 16
    Part.Circle(Vector(7.5, 17.6, 0), Vector(0, 0, 1), 0.925),  # 17
    Part.LineSegment(Vector(5.1, 0, 0), Vector(9.1, 0, 0)),  # 18
    Part.ArcOfCircle(Part.Circle(Vector(9.1, 1, 0), Vector(0, 0, 1), 1), math.radians(-90), math.radians(0)),  # 19
    Part.LineSegment(Vector(10.1, 1, 0), Vector(10.1, 5, 0)),  # 20
    Part.LineSegment(Vector(10.1, 5, 0), Vector(5.1, 5, 0)),  # 21
    Part.LineSegment(Vector(5.1, 5, 0), Vector(5.1, 0, 0)),  # 22
    Part.Circle(Vector(7.5, 2.6, 0), Vector(0, 0, 1), 0.925),  # 23
], False)
sketch13.addConstraint([
    Sketcher.Constraint("Tangent", 0, 2, 1, 1),
    Sketcher.Constraint("Tangent", 1, 2, 2, 1),
    Sketcher.Constraint("Coincident", 2, 2, 3, 1),
    Sketcher.Constraint("Coincident", 3, 2, 4, 1),
    Sketcher.Constraint("Coincident", 4, 2, 0, 1),
    Sketcher.Constraint("Coincident", 6, 2, 7, 1),
    Sketcher.Constraint("Coincident", 7, 2, 8, 1),
    Sketcher.Constraint("Coincident", 8, 2, 9, 1),
    Sketcher.Constraint("Tangent", 9, 2, 10, 1),
    Sketcher.Constraint("Tangent", 10, 2, 6, 1),
    Sketcher.Constraint("Coincident", 12, 2, 13, 1),
    Sketcher.Constraint("Coincident", 13, 2, 14, 1),
    Sketcher.Constraint("Coincident", 14, 2, 15, 1),
    Sketcher.Constraint("Tangent", 15, 2, 16, 1),
    Sketcher.Constraint("Tangent", 16, 2, 12, 1),
    Sketcher.Constraint("Tangent", 18, 2, 19, 1),
    Sketcher.Constraint("Tangent", 19, 2, 20, 1),
    Sketcher.Constraint("Coincident", 20, 2, 21, 1),
    Sketcher.Constraint("Coincident", 21, 2, 22, 1),
    Sketcher.Constraint("Coincident", 22, 2, 18, 1),
    Sketcher.Constraint("Vertical", 0),
    Sketcher.Constraint("Horizontal", 2),
    Sketcher.Constraint("Vertical", 3),
    Sketcher.Constraint("Horizontal", 4),
    Sketcher.Constraint("Vertical", 6),
    Sketcher.Constraint("Horizontal", 7),
    Sketcher.Constraint("Vertical", 8),
    Sketcher.Constraint("Horizontal", 9),
    Sketcher.Constraint("Horizontal", 12),
    Sketcher.Constraint("Vertical", 13),
    Sketcher.Constraint("Horizontal", 14),
    Sketcher.Constraint("Vertical", 15),
    Sketcher.Constraint("Horizontal", 18),
    Sketcher.Constraint("Vertical", 20),
    Sketcher.Constraint("Horizontal", 21),
    Sketcher.Constraint("Vertical", 22),
    Sketcher.Constraint("Equal", 1, 10),
    Sketcher.Constraint("Equal", 5, 11),
    Sketcher.Constraint("Equal", 10, 16),
    Sketcher.Constraint("Equal", 11, 17),
    Sketcher.Constraint("Equal", 16, 19),
    Sketcher.Constraint("Equal", 17, 23),
    Sketcher.Constraint("Symmetric", 1, 2, 18, 2, -1, 1),
    Sketcher.Constraint("Symmetric", 10, 3, 16, 3, -2),
    Sketcher.Constraint("Symmetric", 11, 3, 17, 3, -2),
    Sketcher.Constraint("Symmetric", 5, 3, 23, 3, -2),
    Sketcher.Constraint("Symmetric", 7, 2, 13, 2, -2),
    Sketcher.Constraint("Symmetric", 3, 2, 21, 2, -2),
    Sketcher.Constraint("PointOnObject", 1, 2, -1),
    Sketcher.Constraint("Vertical", 1, 3, 10, 3),
    Sketcher.Constraint("Vertical", 5, 3, 11, 3),
    Sketcher.Constraint("Vertical", 3, 2, 7, 2),
    Sketcher.Constraint("Equal", 18, 0),
    Sketcher.Constraint("Equal", 0, 6),
    Sketcher.Constraint("Radius", 1, 1.0),
    Sketcher.Constraint("Diameter", 5, 1.85),
    Sketcher.Constraint("DistanceX", 2, 1, 2, 2, 4.0),
    Sketcher.Constraint("DistanceY", 5, 3, 11, 3, 15.0),
    Sketcher.Constraint("DistanceX", 11, 3, 17, 3, 15.0),
    Sketcher.Constraint("DistanceX", 1, 3, -1, 1, 9.1),
    Sketcher.Constraint("DistanceY", -1, 1, 5, 3, 2.6),
    Sketcher.Constraint("DistanceY", -1, 1, 10, 3, 19.2),
])
pad4 = body.newObject("PartDesign::Pad", "Pad003")
pad4.Profile = sketch13
pad4.Length = 0.5
pad4.Reversed = True

# Sketch on XZ plane
sketch14 = body.newObject("Sketcher::SketchObject", "Sketch013")
sketch14.AttachmentSupport = (doc.getObject("XZ_Plane"), [""])
sketch14.MapMode = "FlatFace"
sketch14.AttachmentOffset = App.Placement(Vector(0, 0, -22), App.Rotation())
sketch14.addGeometry([
    Part.LineSegment(Vector(-10.1, 15.2, 0), Vector(-10.1, 5, 0)),  # 0
    Part.LineSegment(Vector(-10.1, 5, 0), Vector(-5.1, 5, 0)),  # 1
    Part.LineSegment(Vector(-5.1, 5, 0), Vector(-5.1, 15.2, 0)),  # 2
    Part.LineSegment(Vector(-5.1, 15.2, 0), Vector(-10.1, 15.2, 0)),  # 3
    Part.LineSegment(Vector(5.1, 15.2, 0), Vector(5.1, 5, 0)),  # 4
    Part.LineSegment(Vector(5.1, 5, 0), Vector(10.1, 5, 0)),  # 5
    Part.LineSegment(Vector(10.1, 5, 0), Vector(10.1, 15.2, 0)),  # 6
    Part.LineSegment(Vector(10.1, 15.2, 0), Vector(5.1, 15.2, 0)),  # 7
], False)
sketch14.addConstraint([
    Sketcher.Constraint("Coincident", 0, 2, 1, 1),
    Sketcher.Constraint("Coincident", 1, 2, 2, 1),
    Sketcher.Constraint("Coincident", 2, 2, 3, 1),
    Sketcher.Constraint("Coincident", 3, 2, 0, 1),
    Sketcher.Constraint("Coincident", 4, 2, 5, 1),
    Sketcher.Constraint("Coincident", 5, 2, 6, 1),
    Sketcher.Constraint("Coincident", 6, 2, 7, 1),
    Sketcher.Constraint("Coincident", 7, 2, 4, 1),
    Sketcher.Constraint("Vertical", 0),
    Sketcher.Constraint("Horizontal", 1),
    Sketcher.Constraint("Vertical", 2),
    Sketcher.Constraint("Horizontal", 3),
    Sketcher.Constraint("Vertical", 4),
    Sketcher.Constraint("Horizontal", 5),
    Sketcher.Constraint("Vertical", 6),
    Sketcher.Constraint("Horizontal", 7),
    Sketcher.Constraint("Symmetric", 1, 2, 4, 2, -2),
    Sketcher.Constraint("Symmetric", 3, 2, 6, 2, -2),
    Sketcher.Constraint("DistanceX", 1, 1, 1, 2, 5.0),
    Sketcher.Constraint("DistanceY", 0, 2, 0, 1, 10.2),
    Sketcher.Constraint("DistanceY", -1, 1, 0, 2, 5.0),
    Sketcher.Constraint("DistanceX", 0, 2, -1, 1, 10.1),
])
pad5 = body.newObject("PartDesign::Pad", "Pad004")
pad5.Profile = sketch14
pad5.Length = 0.2

doc.recompute()
